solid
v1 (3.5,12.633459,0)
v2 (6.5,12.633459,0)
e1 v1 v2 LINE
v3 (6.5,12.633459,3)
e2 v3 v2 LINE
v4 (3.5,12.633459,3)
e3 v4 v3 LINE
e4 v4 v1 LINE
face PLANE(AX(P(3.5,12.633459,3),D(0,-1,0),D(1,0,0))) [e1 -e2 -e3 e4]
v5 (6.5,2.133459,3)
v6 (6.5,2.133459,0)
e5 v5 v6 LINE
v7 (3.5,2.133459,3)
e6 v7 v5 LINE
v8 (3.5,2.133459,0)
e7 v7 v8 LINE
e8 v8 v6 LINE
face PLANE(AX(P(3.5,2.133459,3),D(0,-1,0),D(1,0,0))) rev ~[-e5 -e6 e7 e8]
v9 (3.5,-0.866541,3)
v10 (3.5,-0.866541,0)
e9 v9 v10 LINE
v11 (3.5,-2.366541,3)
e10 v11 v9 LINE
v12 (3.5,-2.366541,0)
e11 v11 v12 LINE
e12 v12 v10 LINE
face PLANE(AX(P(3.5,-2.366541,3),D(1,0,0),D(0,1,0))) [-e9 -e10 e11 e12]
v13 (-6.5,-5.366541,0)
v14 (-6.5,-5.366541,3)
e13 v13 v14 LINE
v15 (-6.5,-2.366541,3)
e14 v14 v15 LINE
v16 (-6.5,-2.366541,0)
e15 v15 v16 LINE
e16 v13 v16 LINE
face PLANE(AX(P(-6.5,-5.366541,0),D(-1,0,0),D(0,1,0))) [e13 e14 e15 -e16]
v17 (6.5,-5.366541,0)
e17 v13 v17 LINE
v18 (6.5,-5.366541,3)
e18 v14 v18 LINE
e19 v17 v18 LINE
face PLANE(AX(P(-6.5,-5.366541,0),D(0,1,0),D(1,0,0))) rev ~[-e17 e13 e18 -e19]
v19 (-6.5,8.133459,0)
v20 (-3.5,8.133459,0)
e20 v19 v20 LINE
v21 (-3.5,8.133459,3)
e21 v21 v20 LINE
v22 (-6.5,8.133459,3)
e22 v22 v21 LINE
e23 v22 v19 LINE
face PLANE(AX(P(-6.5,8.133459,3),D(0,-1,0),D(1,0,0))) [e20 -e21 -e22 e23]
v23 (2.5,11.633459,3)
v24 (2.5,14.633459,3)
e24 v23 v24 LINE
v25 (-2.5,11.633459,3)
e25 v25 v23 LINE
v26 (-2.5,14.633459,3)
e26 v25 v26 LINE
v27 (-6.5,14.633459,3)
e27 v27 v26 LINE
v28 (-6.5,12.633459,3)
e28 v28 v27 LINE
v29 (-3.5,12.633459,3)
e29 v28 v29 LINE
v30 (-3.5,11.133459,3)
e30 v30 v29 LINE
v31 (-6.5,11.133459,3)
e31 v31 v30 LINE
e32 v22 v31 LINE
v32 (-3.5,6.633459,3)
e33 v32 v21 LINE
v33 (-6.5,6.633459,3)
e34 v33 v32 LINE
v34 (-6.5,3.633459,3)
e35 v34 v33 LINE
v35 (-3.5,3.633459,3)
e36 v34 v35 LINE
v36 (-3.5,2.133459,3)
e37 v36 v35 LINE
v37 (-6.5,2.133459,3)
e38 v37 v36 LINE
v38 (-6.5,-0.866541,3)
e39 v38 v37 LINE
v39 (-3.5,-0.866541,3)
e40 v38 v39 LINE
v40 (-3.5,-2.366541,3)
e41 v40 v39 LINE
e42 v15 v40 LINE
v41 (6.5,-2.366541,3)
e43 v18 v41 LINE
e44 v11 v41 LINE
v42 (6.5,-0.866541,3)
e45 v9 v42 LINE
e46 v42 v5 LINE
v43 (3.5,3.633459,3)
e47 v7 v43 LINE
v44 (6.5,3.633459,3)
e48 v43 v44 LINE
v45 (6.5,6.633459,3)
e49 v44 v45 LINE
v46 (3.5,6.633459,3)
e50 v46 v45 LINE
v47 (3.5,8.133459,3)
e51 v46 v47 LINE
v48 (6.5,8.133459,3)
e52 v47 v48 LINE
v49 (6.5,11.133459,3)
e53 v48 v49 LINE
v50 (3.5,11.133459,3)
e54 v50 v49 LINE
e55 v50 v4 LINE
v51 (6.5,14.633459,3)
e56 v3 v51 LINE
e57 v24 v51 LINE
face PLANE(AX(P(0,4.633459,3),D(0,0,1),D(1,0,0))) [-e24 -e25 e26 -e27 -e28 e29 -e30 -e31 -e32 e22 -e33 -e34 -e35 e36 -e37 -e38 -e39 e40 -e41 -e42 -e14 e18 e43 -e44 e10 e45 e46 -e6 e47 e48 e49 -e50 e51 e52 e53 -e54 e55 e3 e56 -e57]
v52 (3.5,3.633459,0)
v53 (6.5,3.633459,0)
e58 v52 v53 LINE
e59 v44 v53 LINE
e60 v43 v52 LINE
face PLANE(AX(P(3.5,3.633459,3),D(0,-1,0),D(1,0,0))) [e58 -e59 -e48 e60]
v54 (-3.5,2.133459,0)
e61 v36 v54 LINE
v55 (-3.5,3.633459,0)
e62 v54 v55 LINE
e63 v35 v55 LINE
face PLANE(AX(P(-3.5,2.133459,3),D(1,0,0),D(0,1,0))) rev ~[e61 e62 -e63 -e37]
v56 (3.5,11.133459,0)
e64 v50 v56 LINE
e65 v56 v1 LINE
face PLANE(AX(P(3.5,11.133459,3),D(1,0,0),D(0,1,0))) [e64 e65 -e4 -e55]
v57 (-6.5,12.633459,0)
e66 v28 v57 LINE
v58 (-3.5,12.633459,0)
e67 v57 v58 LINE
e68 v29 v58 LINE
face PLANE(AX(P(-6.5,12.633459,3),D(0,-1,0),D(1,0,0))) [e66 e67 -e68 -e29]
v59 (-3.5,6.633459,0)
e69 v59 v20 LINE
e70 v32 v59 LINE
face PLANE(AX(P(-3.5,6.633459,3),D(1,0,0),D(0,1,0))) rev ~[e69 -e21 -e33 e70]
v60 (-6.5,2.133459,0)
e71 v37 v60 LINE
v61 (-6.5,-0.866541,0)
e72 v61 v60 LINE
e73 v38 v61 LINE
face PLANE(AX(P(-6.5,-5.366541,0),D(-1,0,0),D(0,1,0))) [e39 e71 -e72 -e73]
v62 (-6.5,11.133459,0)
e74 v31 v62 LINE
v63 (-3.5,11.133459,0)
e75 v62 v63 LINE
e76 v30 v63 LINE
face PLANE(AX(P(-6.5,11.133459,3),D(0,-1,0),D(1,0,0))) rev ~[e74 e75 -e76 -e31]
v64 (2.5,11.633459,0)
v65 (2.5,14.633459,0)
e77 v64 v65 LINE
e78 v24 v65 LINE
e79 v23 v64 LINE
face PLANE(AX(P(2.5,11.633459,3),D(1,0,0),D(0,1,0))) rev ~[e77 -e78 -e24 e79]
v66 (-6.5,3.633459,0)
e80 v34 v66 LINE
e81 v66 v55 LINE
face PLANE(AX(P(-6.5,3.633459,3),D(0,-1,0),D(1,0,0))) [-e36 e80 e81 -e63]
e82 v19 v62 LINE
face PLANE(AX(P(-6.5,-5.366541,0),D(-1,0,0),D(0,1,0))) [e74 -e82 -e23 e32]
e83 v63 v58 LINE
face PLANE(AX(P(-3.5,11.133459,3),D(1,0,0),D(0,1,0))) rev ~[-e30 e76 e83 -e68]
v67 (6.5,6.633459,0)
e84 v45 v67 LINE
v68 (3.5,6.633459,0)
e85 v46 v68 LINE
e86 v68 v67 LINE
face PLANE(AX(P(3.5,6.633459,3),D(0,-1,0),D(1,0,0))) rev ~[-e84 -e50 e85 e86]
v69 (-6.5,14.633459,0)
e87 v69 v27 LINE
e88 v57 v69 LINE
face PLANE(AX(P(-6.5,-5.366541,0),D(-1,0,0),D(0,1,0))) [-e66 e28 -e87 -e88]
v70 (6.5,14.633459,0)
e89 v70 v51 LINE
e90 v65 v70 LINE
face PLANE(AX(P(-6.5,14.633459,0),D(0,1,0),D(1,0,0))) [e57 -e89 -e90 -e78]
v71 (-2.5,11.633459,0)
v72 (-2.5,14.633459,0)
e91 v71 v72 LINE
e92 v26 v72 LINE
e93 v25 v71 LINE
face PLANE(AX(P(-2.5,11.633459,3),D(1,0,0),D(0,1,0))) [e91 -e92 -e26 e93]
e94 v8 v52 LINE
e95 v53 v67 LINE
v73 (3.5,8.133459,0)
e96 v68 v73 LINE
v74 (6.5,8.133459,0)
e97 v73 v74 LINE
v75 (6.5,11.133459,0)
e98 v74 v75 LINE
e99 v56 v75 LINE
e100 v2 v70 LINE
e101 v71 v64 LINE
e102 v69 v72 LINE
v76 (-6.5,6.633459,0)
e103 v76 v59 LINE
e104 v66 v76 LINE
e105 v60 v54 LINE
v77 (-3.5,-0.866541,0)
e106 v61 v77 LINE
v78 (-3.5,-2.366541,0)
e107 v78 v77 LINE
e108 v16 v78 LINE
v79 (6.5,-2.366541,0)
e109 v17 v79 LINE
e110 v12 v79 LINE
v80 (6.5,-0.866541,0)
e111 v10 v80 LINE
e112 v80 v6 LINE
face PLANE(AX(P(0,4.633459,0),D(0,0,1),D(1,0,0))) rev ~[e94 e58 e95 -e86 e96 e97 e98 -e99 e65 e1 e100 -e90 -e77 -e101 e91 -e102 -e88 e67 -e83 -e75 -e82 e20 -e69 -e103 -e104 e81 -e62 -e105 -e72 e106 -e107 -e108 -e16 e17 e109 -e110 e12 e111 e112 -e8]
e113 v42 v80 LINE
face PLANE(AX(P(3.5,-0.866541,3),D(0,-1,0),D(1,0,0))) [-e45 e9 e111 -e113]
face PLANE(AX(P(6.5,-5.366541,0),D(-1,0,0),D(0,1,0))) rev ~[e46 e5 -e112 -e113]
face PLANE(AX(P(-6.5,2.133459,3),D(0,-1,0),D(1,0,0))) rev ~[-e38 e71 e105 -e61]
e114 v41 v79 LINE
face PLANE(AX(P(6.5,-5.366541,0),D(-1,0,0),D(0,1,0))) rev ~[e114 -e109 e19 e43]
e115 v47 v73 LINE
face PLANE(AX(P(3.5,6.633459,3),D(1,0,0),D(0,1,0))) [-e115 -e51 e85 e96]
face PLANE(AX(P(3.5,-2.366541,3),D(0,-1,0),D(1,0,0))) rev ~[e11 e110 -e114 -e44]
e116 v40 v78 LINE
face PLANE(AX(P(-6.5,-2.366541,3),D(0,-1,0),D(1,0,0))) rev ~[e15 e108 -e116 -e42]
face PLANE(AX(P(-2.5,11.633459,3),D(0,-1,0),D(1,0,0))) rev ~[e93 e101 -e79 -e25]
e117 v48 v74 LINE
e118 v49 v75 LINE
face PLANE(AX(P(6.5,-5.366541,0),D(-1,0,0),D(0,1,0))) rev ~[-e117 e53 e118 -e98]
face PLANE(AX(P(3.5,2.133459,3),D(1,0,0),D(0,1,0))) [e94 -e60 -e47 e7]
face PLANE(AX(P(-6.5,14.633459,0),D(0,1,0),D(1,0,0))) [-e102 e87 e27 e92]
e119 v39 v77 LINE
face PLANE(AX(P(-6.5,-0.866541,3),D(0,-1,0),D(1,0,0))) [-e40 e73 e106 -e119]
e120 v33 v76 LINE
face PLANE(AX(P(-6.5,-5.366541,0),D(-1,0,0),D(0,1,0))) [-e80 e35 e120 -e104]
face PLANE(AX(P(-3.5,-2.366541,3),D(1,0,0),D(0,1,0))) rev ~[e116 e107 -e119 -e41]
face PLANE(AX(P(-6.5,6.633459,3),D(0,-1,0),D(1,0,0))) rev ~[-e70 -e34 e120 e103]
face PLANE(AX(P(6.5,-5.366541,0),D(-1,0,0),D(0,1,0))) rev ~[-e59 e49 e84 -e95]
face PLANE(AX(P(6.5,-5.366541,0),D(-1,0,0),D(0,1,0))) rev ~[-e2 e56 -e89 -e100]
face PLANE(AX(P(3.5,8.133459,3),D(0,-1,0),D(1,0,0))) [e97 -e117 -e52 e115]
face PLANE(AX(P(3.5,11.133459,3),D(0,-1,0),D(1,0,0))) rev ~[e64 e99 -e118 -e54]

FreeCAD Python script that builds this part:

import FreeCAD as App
import Part
import Sketcher

V = App.Vector
Q = App.Units.Quantity


def add_polygon(sketch, points):
    """Adds a closed chain of lines whose ends are joined by coincident constraints."""
    first, n = sketch.GeometryCount, len(points)
    for a, b in zip(points, points[1:] + points[:1]):
        sketch.addGeometry(Part.LineSegment(App.Vector(*a, 0), App.Vector(*b, 0)), False)
    for i in range(n):
        sketch.addConstraint(Sketcher.Constraint("Coincident", first + i, 2, first + (i + 1) % n, 1))

doc = App.newDocument("Part")
body = doc.addObject("PartDesign::Body", "Body")

sketch1 = body.newObject("Sketcher::SketchObject", "Sketch")
sketch1.AttachmentSupport = (doc.getObject("XY_Plane"), [""])
sketch1.MapMode = "FlatFace"
add_polygon(sketch1, [(-6, 15), (-6, -5), (6, -5), (6, 15)])
sketch1.addConstraint(Sketcher.Constraint("Vertical", 0))
sketch1.addConstraint(Sketcher.Constraint("Horizontal", 1))
sketch1.addConstraint(Sketcher.Constraint("Vertical", 2))
sketch1.addConstraint(Sketcher.Constraint("Horizontal", 3))
sketch1.addConstraint(Sketcher.Constraint("DistanceX", 1, 1, 1, 2, Q("13 mm")))
sketch1.addConstraint(Sketcher.Constraint("DistanceY", 0, 2, 0, 1, Q("20 mm")))
sketch1.addConstraint(Sketcher.Constraint("DistanceX", 0, 2, -1, 1, Q("6.5 mm")))
sketch1.addConstraint(Sketcher.Constraint("DistanceY", 0, 2, -1, 1, Q("5.366541 mm")))
pad1 = body.newObject("PartDesign::Pad", "Pad")
pad1.Profile = sketch1
pad1.Length = 3

sketch2 = body.newObject("Sketcher::SketchObject", "Sketch001")
sketch2.AttachmentSupport = (doc.getObject("XY_Plane"), [""])
sketch2.MapMode = "FlatFace"
sketch2.AttachmentOffset = App.Placement(V(0, 0, 3), App.Rotation())
add_polygon(sketch2, [(-6.5, 12.6), (-6.5, 11.1), (-3.5, 11.1), (-3.5, 12.6)])
add_polygon(sketch2, [(-6.5, 8.1), (-6.5, 6.6), (-3.5, 6.6), (-3.5, 8.1)])
sketch2.addConstraint(Sketcher.Constraint("Vertical", 0))
sketch2.addConstraint(Sketcher.Constraint("Horizontal", 1))
sketch2.addConstraint(Sketcher.Constraint("Vertical", 2))
sketch2.addConstraint(Sketcher.Constraint("Horizontal", 3))
sketch2.addConstraint(Sketcher.Constraint("Vertical", 4))
sketch2.addConstraint(Sketcher.Constraint("Horizontal", 5))
sketch2.addConstraint(Sketcher.Constraint("Vertical", 6))
sketch2.addConstraint(Sketcher.Constraint("Horizontal", 7))
sketch2.addConstraint(Sketcher.Constraint("Vertical", 3, 2, 4, 2))
sketch2.addConstraint(Sketcher.Constraint("Vertical", 2, 2, 5, 2))
sketch2.addConstraint(Sketcher.Constraint("Equal", 2, 4))
sketch2.addConstraint(Sketcher.Constraint("DistanceX", 1, 1, 1, 2, Q("3 mm")))
sketch2.addConstraint(Sketcher.Constraint("DistanceY", 0, 2, 0, 1, Q("1.5 mm")))
sketch2.addConstraint(Sketcher.Constraint("DistanceY", 4, 2, 3, 2, Q("6 mm")))
sketch2.addConstraint(Sketcher.Constraint("DistanceX", 0, 2, -1, 1, Q("6.5 mm")))
sketch2.addConstraint(Sketcher.Constraint("DistanceY", -1, 1, 0, 2, Q("11.133459 mm")))
pocket1 = body.newObject("PartDesign::Pocket", "Pocket")
pocket1.Profile = sketch2
pocket1.Length = 3

sketch3 = body.newObject("Sketcher::SketchObject", "Sketch002")
sketch3.AttachmentSupport = (doc.getObject("XY_Plane"), [""])
sketch3.MapMode = "FlatFace"
sketch3.AttachmentOffset = App.Placement(V(0, 0, 3), App.Rotation())
add_polygon(sketch3, [(3.5, 12.6), (3.5, 11.1), (6.5, 11.1), (6.5, 12.6)])
add_polygon(sketch3, [(3.5, 8.1), (3.5, 6.6), (6.5, 6.6), (6.5, 8.1)])
sketch3.addConstraint(Sketcher.Constraint("Vertical", 0))
sketch3.addConstraint(Sketcher.Constraint("Horizontal", 1))
sketch3.addConstraint(Sketcher.Constraint("Vertical", 2))
sketch3.addConstraint(Sketcher.Constraint("Horizontal", 3))
sketch3.addConstraint(Sketcher.Constraint("Vertical", 4))
sketch3.addConstraint(Sketcher.Constraint("Horizontal", 5))
sketch3.addConstraint(Sketcher.Constraint("Vertical", 6))
sketch3.addConstraint(Sketcher.Constraint("Horizontal", 7))
sketch3.addConstraint(Sketcher.Constraint("Vertical", 3, 2, 4, 2))
sketch3.addConstraint(Sketcher.Constraint("Vertical", 2, 2, 5, 2))
sketch3.addConstraint(Sketcher.Constraint("Equal", 2, 4))
sketch3.addConstraint(Sketcher.Constraint("DistanceX", 1, 1, 1, 2, Q("3 mm")))
sketch3.addConstraint(Sketcher.Constraint("DistanceY", 0, 2, 0, 1, Q("1.5 mm")))
sketch3.addConstraint(Sketcher.Constraint("DistanceY", 4, 2, 3, 2, Q("6 mm")))
sketch3.addConstraint(Sketcher.Constraint("DistanceX", -1, 1, 0, 2, Q("3.5 mm")))
sketch3.addConstraint(Sketcher.Constraint("DistanceY", -1, 1, 0, 2, Q("11.133459 mm")))
pocket2 = body.newObject("PartDesign::Pocket", "Pocket001")
pocket2.Profile = sketch3
pocket2.Length = 3

sketch4 = body.newObject("Sketcher::SketchObject", "Sketch003")
sketch4.AttachmentSupport = (doc.getObject("XY_Plane"), [""])
sketch4.MapMode = "FlatFace"
sketch4.AttachmentOffset = App.Placement(V(0, 0, 3), App.Rotation())
add_polygon(sketch4, [(-2.5, 14.6), (-2.5, 11.6), (2.5, 11.6), (2.5, 14.6)])
sketch4.addConstraint(Sketcher.Constraint("Vertical", 0))
sketch4.addConstraint(Sketcher.Constraint("Horizontal", 1))
sketch4.addConstraint(Sketcher.Constraint("Vertical", 2))
sketch4.addConstraint(Sketcher.Constraint("Horizontal", 3))
sketch4.addConstraint(Sketcher.Constraint("DistanceX", 1, 1, 1, 2, Q("5 mm")))
sketch4.addConstraint(Sketcher.Constraint("DistanceY", 0, 2, 0, 1, Q("3 mm")))
sketch4.addConstraint(Sketcher.Constraint("DistanceX", 0, 2, -1, 1, Q("2.5 mm")))
sketch4.addConstraint(Sketcher.Constraint("DistanceY", -1, 1, 0, 2, Q("11.633459 mm")))
pocket3 = body.newObject("PartDesign::Pocket", "Pocket002")
pocket3.Profile = sketch4
pocket3.Length = 3

sketch5 = body.newObject("Sketcher::SketchObject", "Sketch004")
sketch5.AttachmentSupport = (doc.getObject("XY_Plane"), [""])
sketch5.MapMode = "FlatFace"
sketch5.AttachmentOffset = App.Placement(V(0, 0, 3), App.Rotation())
add_polygon(sketch5, [(-6.5, 3.6), (-6.5, 2.1), (-3.5, 2.1), (-3.5, 3.6)])
add_polygon(sketch5, [(-6.5, -0.9), (-6.5, -2.4), (-3.5, -2.4), (-3.5, -0.9)])
add_polygon(sketch5, [(3.5, 3.6), (3.5, 2.1), (6.5, 2.1), (6.5, 3.6)])
add_polygon(sketch5, [(3.5, -0.9), (3.5, -2.4), (6.5, -2.4), (6.5, -0.9)])
sketch5.addConstraint(Sketcher.Constraint("Vertical", 0))
sketch5.addConstraint(Sketcher.Constraint("Horizontal", 1))
sketch5.addConstraint(Sketcher.Constraint("Vertical", 2))
sketch5.addConstraint(Sketcher.Constraint("Horizontal", 3))
sketch5.addConstraint(Sketcher.Constraint("Vertical", 4))
sketch5.addConstraint(Sketcher.Constraint("Horizontal", 5))
sketch5.addConstraint(Sketcher.Constraint("Vertical", 6))
sketch5.addConstraint(Sketcher.Constraint("Horizontal", 7))
sketch5.addConstraint(Sketcher.Constraint("Vertical", 8))
sketch5.addConstraint(Sketcher.Constraint("Horizontal", 9))
sketch5.addConstraint(Sketcher.Constraint("Vertical", 10))
sketch5.addConstraint(Sketcher.Constraint("Horizontal", 11))
sketch5.addConstraint(Sketcher.Constraint("Vertical", 12))
sketch5.addConstraint(Sketcher.Constraint("Horizontal", 13))
sketch5.addConstraint(Sketcher.Constraint("Vertical", 14))
sketch5.addConstraint(Sketcher.Constraint("Horizontal", 15))
sketch5.addConstraint(Sketcher.Constraint("Symmetric", 1, 2, 8, 2, -2))
sketch5.addConstraint(Sketcher.Constraint("Symmetric", 3, 2, 10, 2, -2))
sketch5.addConstraint(Sketcher.Constraint("Symmetric", 5, 2, 12, 2, -2))
sketch5.addConstraint(Sketcher.Constraint("Symmetric", 7, 2, 14, 2, -2))
sketch5.addConstraint(Sketcher.Constraint("Vertical", 3, 2, 4, 2))
sketch5.addConstraint(Sketcher.Constraint("Vertical", 2, 2, 5, 2))
sketch5.addConstraint(Sketcher.Constraint("Equal", 2, 4))
sketch5.addConstraint(Sketcher.Constraint("DistanceX", 1, 1, 1, 2, Q("3 mm")))
sketch5.addConstraint(Sketcher.Constraint("DistanceY", 0, 2, 0, 1, Q("1.5 mm")))
sketch5.addConstraint(Sketcher.Constraint("DistanceY", 4, 2, 3, 2, Q("6 mm")))
sketch5.addConstraint(Sketcher.Constraint("DistanceX", 1, 2, 8, 2, Q("7 mm")))
sketch5.addConstraint(Sketcher.Constraint("DistanceY", -1, 1, 0, 2, Q("2.133459 mm")))
pocket4 = body.newObject("PartDesign::Pocket", "Pocket003")
pocket4.Profile = sketch5
pocket4.Length = 10

doc.recompute()
